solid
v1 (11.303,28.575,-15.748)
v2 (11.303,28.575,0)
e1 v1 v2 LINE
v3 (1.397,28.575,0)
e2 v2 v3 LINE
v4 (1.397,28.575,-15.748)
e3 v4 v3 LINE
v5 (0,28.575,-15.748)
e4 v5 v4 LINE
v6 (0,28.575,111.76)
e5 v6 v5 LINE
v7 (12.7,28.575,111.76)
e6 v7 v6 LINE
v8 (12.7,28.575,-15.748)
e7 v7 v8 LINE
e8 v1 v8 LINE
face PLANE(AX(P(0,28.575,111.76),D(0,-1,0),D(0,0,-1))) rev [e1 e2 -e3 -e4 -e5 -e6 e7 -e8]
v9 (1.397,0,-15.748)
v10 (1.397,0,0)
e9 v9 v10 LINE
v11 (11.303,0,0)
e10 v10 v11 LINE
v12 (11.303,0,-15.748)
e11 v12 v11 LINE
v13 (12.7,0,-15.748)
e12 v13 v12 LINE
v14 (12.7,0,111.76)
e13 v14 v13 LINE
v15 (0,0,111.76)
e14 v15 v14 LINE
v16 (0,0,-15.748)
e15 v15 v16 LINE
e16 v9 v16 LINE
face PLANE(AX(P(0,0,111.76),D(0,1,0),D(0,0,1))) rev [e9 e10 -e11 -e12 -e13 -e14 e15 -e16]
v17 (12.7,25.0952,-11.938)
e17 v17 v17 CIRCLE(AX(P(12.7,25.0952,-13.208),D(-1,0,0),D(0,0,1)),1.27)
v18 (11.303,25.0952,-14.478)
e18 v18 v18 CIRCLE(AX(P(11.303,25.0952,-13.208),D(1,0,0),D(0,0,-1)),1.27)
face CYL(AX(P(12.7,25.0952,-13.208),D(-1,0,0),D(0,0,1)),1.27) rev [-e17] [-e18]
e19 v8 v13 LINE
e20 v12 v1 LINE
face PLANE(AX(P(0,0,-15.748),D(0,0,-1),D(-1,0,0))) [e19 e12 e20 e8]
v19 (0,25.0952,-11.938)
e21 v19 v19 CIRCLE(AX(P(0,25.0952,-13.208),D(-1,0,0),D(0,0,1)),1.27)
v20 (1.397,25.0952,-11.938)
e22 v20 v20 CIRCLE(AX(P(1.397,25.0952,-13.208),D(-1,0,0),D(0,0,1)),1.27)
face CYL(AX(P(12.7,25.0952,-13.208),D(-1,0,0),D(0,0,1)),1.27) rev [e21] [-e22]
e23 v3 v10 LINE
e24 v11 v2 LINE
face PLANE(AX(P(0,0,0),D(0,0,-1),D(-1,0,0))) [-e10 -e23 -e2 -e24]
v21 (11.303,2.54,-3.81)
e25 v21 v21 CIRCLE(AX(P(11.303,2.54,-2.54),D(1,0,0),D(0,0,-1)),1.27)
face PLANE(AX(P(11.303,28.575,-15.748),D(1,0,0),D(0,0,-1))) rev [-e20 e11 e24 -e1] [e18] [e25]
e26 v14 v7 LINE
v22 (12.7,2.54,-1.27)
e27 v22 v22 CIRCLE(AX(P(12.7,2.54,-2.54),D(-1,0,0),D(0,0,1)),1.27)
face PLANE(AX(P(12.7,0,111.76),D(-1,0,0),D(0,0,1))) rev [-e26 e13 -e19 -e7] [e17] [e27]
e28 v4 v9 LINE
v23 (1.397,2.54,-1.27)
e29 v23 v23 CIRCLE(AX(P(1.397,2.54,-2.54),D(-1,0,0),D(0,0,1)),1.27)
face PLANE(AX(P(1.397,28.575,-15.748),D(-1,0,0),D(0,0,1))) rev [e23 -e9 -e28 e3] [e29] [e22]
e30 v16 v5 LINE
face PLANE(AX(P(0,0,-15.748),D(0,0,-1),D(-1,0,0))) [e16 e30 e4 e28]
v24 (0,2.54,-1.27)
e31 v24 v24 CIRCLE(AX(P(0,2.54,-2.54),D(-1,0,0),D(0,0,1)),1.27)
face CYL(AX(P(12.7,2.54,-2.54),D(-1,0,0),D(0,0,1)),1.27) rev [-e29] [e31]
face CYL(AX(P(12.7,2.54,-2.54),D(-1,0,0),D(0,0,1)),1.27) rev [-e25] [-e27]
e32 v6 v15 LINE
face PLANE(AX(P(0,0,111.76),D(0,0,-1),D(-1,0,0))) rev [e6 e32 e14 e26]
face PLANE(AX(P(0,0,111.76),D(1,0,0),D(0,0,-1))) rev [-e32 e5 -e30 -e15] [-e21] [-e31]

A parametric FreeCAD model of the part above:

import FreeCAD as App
import Part
import Sketcher
from FreeCAD import Vector
Q = App.Units.Quantity

doc = App.newDocument("Part")
body = doc.addObject("PartDesign::Body", "Body")

# Sketch on XY plane
sketch1 = body.newObject("Sketcher::SketchObject", "Sketch")
sketch1.AttachmentSupport = (doc.getObject("XY_Plane"), [""])
sketch1.MapMode = "FlatFace"
sketch1.addGeometry([
    Part.LineSegment(Vector(0, 29, 0), Vector(0, 0, 0)),
    Part.LineSegment(Vector(0, 0, 0), Vector(13, 0, 0)),
    Part.LineSegment(Vector(13, 0, 0), Vector(13, 29, 0)),
    Part.LineSegment(Vector(13, 29, 0), Vector(0, 29, 0)),
], False)
sketch1.addConstraint([
    Sketcher.Constraint("Coincident", 0, 2, 1, 1),
    Sketcher.Constraint("Coincident", 1, 2, 2, 1),
    Sketcher.Constraint("Coincident", 2, 2, 3, 1),
    Sketcher.Constraint("Coincident", 3, 2, 0, 1),
    Sketcher.Constraint("Vertical", 0),
    Sketcher.Constraint("Horizontal", 1),
    Sketcher.Constraint("Vertical", 2),
    Sketcher.Constraint("Horizontal", 3),
    Sketcher.Constraint("Coincident", 0, 2, -1, 1),
    Sketcher.Constraint("DistanceX", 1, 1, 1, 2, Q("0.5 in")),
    Sketcher.Constraint("DistanceY", 0, 2, 0, 1, Q("1.125 in")),
])
pad1 = body.newObject("PartDesign::Pad", "Pad")
pad1.Profile = sketch1
pad1.Length = Q("4.4 in")

# Sketch on XY plane
sketch2 = body.newObject("Sketcher::SketchObject", "Sketch001")
sketch2.AttachmentSupport = (doc.getObject("XY_Plane"), [""])
sketch2.MapMode = "FlatFace"
sketch2.addGeometry([
    Part.LineSegment(Vector(1.4, 28.6, 0), Vector(1.4, 0, 0)),  # 0
    Part.LineSegment(Vector(1.4, 0, 0), Vector(0, 0, 0)),  # 1
    Part.LineSegment(Vector(0, 0, 0), Vector(0, 28.6, 0)),  # 2
    Part.LineSegment(Vector(0, 28.6, 0), Vector(1.4, 28.6, 0)),  # 3
    Part.LineSegment(Vector(12.7, 28.6, 0), Vector(12.7, 0, 0)),  # 4
    Part.LineSegment(Vector(12.7, 0, 0), Vector(11.3, 0, 0)),  # 5
    Part.LineSegment(Vector(11.3, 0, 0), Vector(11.3, 28.6, 0)),  # 6
    Part.LineSegment(Vector(11.3, 28.6, 0), Vector(12.7, 28.6, 0)),  # 7
], False)
sketch2.addConstraint([
    Sketcher.Constraint("Coincident", 0, 2, 1, 1),
    Sketcher.Constraint("Coincident", 1, 2, 2, 1),
    Sketcher.Constraint("Coincident", 2, 2, 3, 1),
    Sketcher.Constraint("Coincident", 3, 2, 0, 1),
    Sketcher.Constraint("Coincident", 4, 2, 5, 1),
    Sketcher.Constraint("Coincident", 5, 2, 6, 1),
    Sketcher.Constraint("Coincident", 6, 2, 7, 1),
    Sketcher.Constraint("Coincident", 7, 2, 4, 1),
    Sketcher.Constraint("Vertical", 0),
    Sketcher.Constraint("Horizontal", 1),
    Sketcher.Constraint("Vertical", 2),
    Sketcher.Constraint("Horizontal", 3),
    Sketcher.Constraint("Vertical", 4),
    Sketcher.Constraint("Horizontal", 5),
    Sketcher.Constraint("Vertical", 6),
    Sketcher.Constraint("Horizontal", 7),
    Sketcher.Constraint("Coincident", 1, 2, -1, 1),
    Sketcher.Constraint("PointOnObject", 4, 2, -1),
    Sketcher.Constraint("Horizontal", 3, 2, 6, 2),
    Sketcher.Constraint("Equal", 3, 5),
    Sketcher.Constraint("DistanceX", -1, 1, 4, 2, Q("0.5 in")),
    Sketcher.Constraint("DistanceX", 1, 2, 1, 1, Q("0.055 in")),
    Sketcher.Constraint("DistanceY", 0, 2, 0, 1, Q("1.125 in")),
])
pad2 = body.newObject("PartDesign::Pad", "Pad001")
pad2.Profile = sketch2
pad2.Length = Q("0.62 in")
pad2.Reversed = True

# Sketch on YZ plane
sketch3 = body.newObject("Sketcher::SketchObject", "Sketch002")
sketch3.AttachmentSupport = (doc.getObject("YZ_Plane"), [""])
sketch3.MapMode = "FlatFace"
sketch3.addGeometry([
    Part.Circle(Vector(25.1, -13.2, 0), Vector(0, 0, 1), 1.3),
    Part.Circle(Vector(2.5, -2.5, 0), Vector(0, 0, 1), 1.3),
], False)
sketch3.addConstraint([
    Sketcher.Constraint("Equal", 0, 1),
    Sketcher.Constraint("Diameter", 0, Q("0.1 in")),
    Sketcher.Constraint("DistanceX", -1, 1, 1, 3, Q("0.1 in")),
    Sketcher.Constraint("DistanceY", 1, 3, -1, 1, Q("0.1 in")),
    Sketcher.Constraint("DistanceY", 0, 3, -1, 1, Q("0.52 in")),
    Sketcher.Constraint("DistanceX", -1, 1, 0, 3, Q("0.988 in")),
])
pocket1 = body.newObject("PartDesign::Pocket", "Pocket")
pocket1.Profile = sketch3
pocket1.Type = "ThroughAll"
pocket1.Midplane = True

doc.recompute()
